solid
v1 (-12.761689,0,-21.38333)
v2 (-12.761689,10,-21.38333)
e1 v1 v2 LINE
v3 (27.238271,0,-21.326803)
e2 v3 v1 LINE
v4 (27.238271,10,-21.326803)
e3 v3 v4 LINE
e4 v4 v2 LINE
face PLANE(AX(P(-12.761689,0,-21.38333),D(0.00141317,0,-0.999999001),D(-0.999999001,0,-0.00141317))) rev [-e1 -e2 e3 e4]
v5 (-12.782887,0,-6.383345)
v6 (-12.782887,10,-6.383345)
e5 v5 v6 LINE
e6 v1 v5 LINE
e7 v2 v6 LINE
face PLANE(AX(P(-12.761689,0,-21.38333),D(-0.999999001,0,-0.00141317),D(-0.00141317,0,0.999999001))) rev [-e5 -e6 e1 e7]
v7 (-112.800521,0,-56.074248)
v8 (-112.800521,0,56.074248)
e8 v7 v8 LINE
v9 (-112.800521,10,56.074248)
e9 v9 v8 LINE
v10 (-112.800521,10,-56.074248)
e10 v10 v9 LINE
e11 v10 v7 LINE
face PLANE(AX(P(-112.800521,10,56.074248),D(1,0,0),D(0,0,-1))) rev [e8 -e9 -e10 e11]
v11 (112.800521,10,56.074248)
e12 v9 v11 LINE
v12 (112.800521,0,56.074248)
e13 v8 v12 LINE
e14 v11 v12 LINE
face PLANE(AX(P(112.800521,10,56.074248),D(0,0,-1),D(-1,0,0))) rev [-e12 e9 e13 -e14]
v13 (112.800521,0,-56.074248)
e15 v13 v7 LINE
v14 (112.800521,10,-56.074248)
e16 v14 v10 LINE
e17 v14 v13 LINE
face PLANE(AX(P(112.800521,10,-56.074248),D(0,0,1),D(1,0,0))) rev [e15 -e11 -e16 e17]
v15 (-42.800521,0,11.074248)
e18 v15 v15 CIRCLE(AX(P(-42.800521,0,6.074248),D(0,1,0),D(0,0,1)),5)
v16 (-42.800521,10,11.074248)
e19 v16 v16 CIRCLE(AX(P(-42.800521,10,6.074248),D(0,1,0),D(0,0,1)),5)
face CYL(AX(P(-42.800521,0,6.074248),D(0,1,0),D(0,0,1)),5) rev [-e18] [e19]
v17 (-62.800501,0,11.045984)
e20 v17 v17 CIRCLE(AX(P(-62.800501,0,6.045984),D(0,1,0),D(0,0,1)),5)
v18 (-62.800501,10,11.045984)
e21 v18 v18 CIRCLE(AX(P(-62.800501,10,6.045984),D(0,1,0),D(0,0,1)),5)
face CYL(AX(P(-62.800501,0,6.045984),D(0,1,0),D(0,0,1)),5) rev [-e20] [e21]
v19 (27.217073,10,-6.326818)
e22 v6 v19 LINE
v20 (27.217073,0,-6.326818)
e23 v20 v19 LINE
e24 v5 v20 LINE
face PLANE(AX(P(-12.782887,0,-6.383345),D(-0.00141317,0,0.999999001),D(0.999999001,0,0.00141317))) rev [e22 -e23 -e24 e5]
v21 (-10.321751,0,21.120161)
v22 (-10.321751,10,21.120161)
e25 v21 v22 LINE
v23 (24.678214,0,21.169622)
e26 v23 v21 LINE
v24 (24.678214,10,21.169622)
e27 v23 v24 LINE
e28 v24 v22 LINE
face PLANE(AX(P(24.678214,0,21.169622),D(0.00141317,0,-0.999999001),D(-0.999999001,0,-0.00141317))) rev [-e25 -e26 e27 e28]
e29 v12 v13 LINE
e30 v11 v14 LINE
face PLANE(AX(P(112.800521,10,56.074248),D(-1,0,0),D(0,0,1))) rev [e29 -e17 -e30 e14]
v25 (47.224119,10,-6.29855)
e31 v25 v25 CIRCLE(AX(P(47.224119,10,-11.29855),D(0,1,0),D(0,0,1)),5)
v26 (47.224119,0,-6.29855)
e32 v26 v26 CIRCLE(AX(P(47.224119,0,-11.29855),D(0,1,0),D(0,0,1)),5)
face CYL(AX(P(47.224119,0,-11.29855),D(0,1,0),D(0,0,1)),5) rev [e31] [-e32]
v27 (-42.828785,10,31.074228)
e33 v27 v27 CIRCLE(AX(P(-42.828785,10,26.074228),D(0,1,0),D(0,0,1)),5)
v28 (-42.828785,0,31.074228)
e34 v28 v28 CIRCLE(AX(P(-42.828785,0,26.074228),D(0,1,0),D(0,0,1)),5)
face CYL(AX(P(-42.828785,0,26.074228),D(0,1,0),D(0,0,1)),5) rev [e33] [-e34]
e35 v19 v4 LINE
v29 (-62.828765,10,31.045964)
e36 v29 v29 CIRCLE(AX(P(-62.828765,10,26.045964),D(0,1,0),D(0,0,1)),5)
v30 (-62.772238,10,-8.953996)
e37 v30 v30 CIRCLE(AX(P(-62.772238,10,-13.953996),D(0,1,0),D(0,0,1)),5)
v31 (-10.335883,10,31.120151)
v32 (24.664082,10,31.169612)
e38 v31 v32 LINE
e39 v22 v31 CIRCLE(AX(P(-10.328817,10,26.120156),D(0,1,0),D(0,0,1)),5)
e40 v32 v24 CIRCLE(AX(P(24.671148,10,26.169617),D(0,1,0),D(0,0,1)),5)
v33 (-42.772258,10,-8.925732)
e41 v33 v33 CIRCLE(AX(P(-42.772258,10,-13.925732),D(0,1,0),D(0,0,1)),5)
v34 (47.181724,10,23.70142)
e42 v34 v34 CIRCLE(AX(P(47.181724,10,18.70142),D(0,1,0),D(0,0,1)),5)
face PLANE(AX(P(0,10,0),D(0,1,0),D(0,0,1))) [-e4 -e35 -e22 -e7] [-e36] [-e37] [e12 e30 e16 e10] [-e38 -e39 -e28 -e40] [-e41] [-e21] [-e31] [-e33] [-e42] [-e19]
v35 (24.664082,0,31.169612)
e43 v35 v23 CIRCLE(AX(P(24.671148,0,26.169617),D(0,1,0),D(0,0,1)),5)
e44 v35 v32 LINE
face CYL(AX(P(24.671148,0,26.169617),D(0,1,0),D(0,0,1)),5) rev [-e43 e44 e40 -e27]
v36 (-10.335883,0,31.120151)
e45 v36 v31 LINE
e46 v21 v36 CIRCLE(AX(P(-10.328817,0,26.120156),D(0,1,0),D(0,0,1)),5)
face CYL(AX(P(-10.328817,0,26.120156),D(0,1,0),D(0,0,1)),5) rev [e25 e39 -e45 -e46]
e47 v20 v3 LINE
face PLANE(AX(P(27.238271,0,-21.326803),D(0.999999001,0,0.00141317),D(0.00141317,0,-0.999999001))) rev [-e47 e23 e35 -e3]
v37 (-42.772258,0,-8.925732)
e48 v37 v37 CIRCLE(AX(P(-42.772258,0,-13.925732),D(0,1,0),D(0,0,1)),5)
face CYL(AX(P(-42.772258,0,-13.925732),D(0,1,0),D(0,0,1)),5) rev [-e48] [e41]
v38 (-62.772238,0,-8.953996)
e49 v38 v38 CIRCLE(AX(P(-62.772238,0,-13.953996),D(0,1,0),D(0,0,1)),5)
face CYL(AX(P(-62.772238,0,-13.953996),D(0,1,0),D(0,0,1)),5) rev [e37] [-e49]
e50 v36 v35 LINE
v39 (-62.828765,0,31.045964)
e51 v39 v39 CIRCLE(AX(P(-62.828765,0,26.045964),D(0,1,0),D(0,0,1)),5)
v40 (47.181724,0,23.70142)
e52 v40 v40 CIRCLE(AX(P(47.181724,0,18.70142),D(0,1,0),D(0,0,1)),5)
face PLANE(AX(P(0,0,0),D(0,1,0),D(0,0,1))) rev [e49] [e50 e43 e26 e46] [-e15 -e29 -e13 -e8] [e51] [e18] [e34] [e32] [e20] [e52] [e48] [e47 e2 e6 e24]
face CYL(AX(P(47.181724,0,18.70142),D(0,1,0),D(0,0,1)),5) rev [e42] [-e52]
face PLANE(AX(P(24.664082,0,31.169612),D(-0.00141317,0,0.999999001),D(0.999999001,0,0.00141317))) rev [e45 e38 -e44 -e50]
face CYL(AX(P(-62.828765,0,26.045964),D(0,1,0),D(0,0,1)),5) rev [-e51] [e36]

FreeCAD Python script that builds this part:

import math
import FreeCAD as App
import Part
import Sketcher
Q = App.Units.Quantity


def add_polygon(sketch, points):
    """Adds a closed chain of lines whose ends are joined by coincident constraints."""
    first, n = sketch.GeometryCount, len(points)
    for a, b in zip(points, points[1:] + points[:1]):
        sketch.addGeometry(Part.LineSegment(App.Vector(*a, 0), App.Vector(*b, 0)), False)
    for i in range(n):
        sketch.addConstraint(Sketcher.Constraint("Coincident", first + i, 2, first + (i + 1) % n, 1))

doc = App.newDocument("Part")
body = doc.addObject("PartDesign::Body", "Body")

# Sketch on XZ plane
sketch1 = body.newObject("Sketcher::SketchObject", "Sketch")
sketch1.AttachmentSupport = (doc.getObject("XZ_Plane"), [""])
sketch1.MapMode = "FlatFace"
add_polygon(sketch1, [(-112.800521, -56.074248), (-112.800521, 56.074248), (112.800521, 56.074248), (112.800521, -56.074248)])  # lines 0-3
sketch1.addConstraint([
    Sketcher.Constraint("Vertical", 0),
    Sketcher.Constraint("Horizontal", 1),
    Sketcher.Constraint("Vertical", 2),
    Sketcher.Constraint("Horizontal", 3),
    Sketcher.Constraint("Symmetric", 0, 2, 2, 2, -1, 1),
    Sketcher.Constraint("DistanceX", 1, 1, 1, 2, Q("225.601043 mm")),
    Sketcher.Constraint("DistanceY", 0, 1, 0, 2, Q("112.148495 mm")),
])
pad1 = body.newObject("PartDesign::Pad", "Pad")
pad1.Profile = sketch1
pad1.Length = 10
pad1.Reversed = True

# Sketch on XZ plane
sketch2 = body.newObject("Sketcher::SketchObject", "Sketch001")
sketch2.AttachmentSupport = (doc.getObject("XZ_Plane"), [""])
sketch2.MapMode = "FlatFace"
sketch2.AttachmentOffset = App.Placement(App.Vector(0, 0, -10), App.Rotation())
sketch2.addGeometry(Part.Circle(App.Vector(47.181724, 18.70142, 0), App.Vector(0, 0, 1), 5), False)  # 0
sketch2.addGeometry(Part.Circle(App.Vector(47.224119, -11.29855, 0), App.Vector(0, 0, 1), 5), False)  # 1
sketch2.addGeometry(Part.Circle(App.Vector(-42.772258, -13.925732, 0), App.Vector(0, 0, 1), 5), False)  # 2
sketch2.addGeometry(Part.Circle(App.Vector(-62.772238, -13.953996, 0), App.Vector(0, 0, 1), 5), False)  # 3
sketch2.addGeometry(Part.Circle(App.Vector(-62.800501, 6.045984, 0), App.Vector(0, 0, 1), 5), False)  # 4
sketch2.addGeometry(Part.Circle(App.Vector(-62.828765, 26.045964, 0), App.Vector(0, 0, 1), 5), False)  # 5
sketch2.addGeometry(Part.Circle(App.Vector(-42.800521, 6.074248, 0), App.Vector(0, 0, 1), 5), False)  # 6
sketch2.addGeometry(Part.Circle(App.Vector(-42.828785, 26.074228, 0), App.Vector(0, 0, 1), 5), False)  # 7
add_polygon(sketch2, [(27.238271, -21.326803), (-12.761689, -21.38333), (-12.782887, -6.383345), (27.217073, -6.326818)])  # lines 8-11
sketch2.addGeometry(Part.LineSegment(App.Vector(-10.335883, 31.120151, 0), App.Vector(24.664082, 31.169612, 0)), False)  # 12
sketch2.addGeometry(Part.ArcOfCircle(Part.Circle(App.Vector(24.671148, 26.169617, 0), App.Vector(0, 0, 1), 5), math.radians(-89.919031), math.radians(90.080969)), False)  # 13
sketch2.addGeometry(Part.LineSegment(App.Vector(24.678214, 21.169622, 0), App.Vector(-10.321751, 21.120161, 0)), False)  # 14
sketch2.addGeometry(Part.ArcOfCircle(Part.Circle(App.Vector(-10.328817, 26.120156, 0), App.Vector(0, 0, 1), 5), math.radians(90.080969), math.radians(270.080969)), False)  # 15
sketch2.addConstraint([
    Sketcher.Constraint("Tangent", 12, 2, 13, 2),
    Sketcher.Constraint("Tangent", 13, 1, 14, 1),
    Sketcher.Constraint("Tangent", 14, 2, 15, 2),
    Sketcher.Constraint("Tangent", 15, 1, 12, 1),
    Sketcher.Constraint("Equal", 0, 1),
    Sketcher.Constraint("Equal", 1, 2),
    Sketcher.Constraint("Equal", 2, 3),
    Sketcher.Constraint("Equal", 3, 4),
    Sketcher.Constraint("Equal", 4, 5),
    Sketcher.Constraint("Equal", 5, 6),
    Sketcher.Constraint("Equal", 6, 7),
    Sketcher.Constraint("Equal", 7, 13),
    Sketcher.Constraint("Equal", 13, 15),
    Sketcher.Constraint("Perpendicular", 8, 9),
    Sketcher.Constraint("Perpendicular", 9, 10),
    Sketcher.Constraint("Perpendicular", 10, 11),
    Sketcher.Constraint("Perpendicular", 11, 12),
    Sketcher.Constraint("Diameter", 0, Q("10 mm")),
    Sketcher.Constraint("Distance", 8, Q("40 mm")),
    Sketcher.Constraint("Distance", 9, Q("15 mm")),
    Sketcher.Constraint("Distance", 12, Q("35 mm")),
    Sketcher.Constraint("DistanceX", 4, 3, -1, 1, Q("62.800501 mm")),
    Sketcher.Constraint("DistanceY", 9, 2, 15, 3, Q("32.5035 mm")),
    Sketcher.Constraint("DistanceX", 7, 3, 9, 2, Q("30.045898 mm")),
    Sketcher.Constraint("DistanceX", 15, 3, 12, 2, Q("34.992899 mm")),
    Sketcher.Constraint("DistanceY", 0, 3, 13, 1, Q("2.468201 mm")),
    Sketcher.Constraint("DistanceX", 7, 3, 15, 1, Q("32.492902 mm")),
    Sketcher.Constraint("DistanceY", -1, 1, 0, 3, Q("18.70142 mm")),
    Sketcher.Constraint("DistanceX", -1, 1, 1, 3, Q("47.224119 mm")),
    Sketcher.Constraint("DistanceY", 1, 3, -1, 1, Q("11.29855 mm")),
    Sketcher.Constraint("DistanceX", 6, 3, -1, 1, Q("42.800521 mm")),
    Sketcher.Constraint("DistanceX", 8, 2, -1, 1, Q("12.761689 mm")),
    Sketcher.Constraint("DistanceX", 3, 3, 2, 3, Q("19.99998 mm")),
    Sketcher.Constraint("DistanceY", 3, 3, 4, 3, Q("19.99998 mm")),
    Sketcher.Constraint("DistanceY", 4, 3, 5, 3, Q("19.99998 mm")),
    Sketcher.Constraint("DistanceX", 5, 3, 0, 3, Q("110.010489 mm")),
    Sketcher.Constraint("DistanceY", 2, 3, 6, 3, Q("19.99998 mm")),
    Sketcher.Constraint("DistanceX", 5, 3, 7, 3, Q("19.99998 mm")),
    Sketcher.Constraint("DistanceY", 6, 3, 7, 3, Q("19.99998 mm")),
    Sketcher.Constraint("DistanceY", 7, 3, 13, 3, Q("0.095389 mm")),
    Sketcher.Constraint("DistanceX", 2, 3, 15, 3, Q("32.443441 mm")),
    Sketcher.Constraint("DistanceY", 5, 3, 15, 3, Q("0.074191 mm")),
])
pocket1 = body.newObject("PartDesign::Pocket", "Pocket")
pocket1.Profile = sketch2
pocket1.Type = "ThroughAll"
pocket1.Reversed = True

doc.recompute()
